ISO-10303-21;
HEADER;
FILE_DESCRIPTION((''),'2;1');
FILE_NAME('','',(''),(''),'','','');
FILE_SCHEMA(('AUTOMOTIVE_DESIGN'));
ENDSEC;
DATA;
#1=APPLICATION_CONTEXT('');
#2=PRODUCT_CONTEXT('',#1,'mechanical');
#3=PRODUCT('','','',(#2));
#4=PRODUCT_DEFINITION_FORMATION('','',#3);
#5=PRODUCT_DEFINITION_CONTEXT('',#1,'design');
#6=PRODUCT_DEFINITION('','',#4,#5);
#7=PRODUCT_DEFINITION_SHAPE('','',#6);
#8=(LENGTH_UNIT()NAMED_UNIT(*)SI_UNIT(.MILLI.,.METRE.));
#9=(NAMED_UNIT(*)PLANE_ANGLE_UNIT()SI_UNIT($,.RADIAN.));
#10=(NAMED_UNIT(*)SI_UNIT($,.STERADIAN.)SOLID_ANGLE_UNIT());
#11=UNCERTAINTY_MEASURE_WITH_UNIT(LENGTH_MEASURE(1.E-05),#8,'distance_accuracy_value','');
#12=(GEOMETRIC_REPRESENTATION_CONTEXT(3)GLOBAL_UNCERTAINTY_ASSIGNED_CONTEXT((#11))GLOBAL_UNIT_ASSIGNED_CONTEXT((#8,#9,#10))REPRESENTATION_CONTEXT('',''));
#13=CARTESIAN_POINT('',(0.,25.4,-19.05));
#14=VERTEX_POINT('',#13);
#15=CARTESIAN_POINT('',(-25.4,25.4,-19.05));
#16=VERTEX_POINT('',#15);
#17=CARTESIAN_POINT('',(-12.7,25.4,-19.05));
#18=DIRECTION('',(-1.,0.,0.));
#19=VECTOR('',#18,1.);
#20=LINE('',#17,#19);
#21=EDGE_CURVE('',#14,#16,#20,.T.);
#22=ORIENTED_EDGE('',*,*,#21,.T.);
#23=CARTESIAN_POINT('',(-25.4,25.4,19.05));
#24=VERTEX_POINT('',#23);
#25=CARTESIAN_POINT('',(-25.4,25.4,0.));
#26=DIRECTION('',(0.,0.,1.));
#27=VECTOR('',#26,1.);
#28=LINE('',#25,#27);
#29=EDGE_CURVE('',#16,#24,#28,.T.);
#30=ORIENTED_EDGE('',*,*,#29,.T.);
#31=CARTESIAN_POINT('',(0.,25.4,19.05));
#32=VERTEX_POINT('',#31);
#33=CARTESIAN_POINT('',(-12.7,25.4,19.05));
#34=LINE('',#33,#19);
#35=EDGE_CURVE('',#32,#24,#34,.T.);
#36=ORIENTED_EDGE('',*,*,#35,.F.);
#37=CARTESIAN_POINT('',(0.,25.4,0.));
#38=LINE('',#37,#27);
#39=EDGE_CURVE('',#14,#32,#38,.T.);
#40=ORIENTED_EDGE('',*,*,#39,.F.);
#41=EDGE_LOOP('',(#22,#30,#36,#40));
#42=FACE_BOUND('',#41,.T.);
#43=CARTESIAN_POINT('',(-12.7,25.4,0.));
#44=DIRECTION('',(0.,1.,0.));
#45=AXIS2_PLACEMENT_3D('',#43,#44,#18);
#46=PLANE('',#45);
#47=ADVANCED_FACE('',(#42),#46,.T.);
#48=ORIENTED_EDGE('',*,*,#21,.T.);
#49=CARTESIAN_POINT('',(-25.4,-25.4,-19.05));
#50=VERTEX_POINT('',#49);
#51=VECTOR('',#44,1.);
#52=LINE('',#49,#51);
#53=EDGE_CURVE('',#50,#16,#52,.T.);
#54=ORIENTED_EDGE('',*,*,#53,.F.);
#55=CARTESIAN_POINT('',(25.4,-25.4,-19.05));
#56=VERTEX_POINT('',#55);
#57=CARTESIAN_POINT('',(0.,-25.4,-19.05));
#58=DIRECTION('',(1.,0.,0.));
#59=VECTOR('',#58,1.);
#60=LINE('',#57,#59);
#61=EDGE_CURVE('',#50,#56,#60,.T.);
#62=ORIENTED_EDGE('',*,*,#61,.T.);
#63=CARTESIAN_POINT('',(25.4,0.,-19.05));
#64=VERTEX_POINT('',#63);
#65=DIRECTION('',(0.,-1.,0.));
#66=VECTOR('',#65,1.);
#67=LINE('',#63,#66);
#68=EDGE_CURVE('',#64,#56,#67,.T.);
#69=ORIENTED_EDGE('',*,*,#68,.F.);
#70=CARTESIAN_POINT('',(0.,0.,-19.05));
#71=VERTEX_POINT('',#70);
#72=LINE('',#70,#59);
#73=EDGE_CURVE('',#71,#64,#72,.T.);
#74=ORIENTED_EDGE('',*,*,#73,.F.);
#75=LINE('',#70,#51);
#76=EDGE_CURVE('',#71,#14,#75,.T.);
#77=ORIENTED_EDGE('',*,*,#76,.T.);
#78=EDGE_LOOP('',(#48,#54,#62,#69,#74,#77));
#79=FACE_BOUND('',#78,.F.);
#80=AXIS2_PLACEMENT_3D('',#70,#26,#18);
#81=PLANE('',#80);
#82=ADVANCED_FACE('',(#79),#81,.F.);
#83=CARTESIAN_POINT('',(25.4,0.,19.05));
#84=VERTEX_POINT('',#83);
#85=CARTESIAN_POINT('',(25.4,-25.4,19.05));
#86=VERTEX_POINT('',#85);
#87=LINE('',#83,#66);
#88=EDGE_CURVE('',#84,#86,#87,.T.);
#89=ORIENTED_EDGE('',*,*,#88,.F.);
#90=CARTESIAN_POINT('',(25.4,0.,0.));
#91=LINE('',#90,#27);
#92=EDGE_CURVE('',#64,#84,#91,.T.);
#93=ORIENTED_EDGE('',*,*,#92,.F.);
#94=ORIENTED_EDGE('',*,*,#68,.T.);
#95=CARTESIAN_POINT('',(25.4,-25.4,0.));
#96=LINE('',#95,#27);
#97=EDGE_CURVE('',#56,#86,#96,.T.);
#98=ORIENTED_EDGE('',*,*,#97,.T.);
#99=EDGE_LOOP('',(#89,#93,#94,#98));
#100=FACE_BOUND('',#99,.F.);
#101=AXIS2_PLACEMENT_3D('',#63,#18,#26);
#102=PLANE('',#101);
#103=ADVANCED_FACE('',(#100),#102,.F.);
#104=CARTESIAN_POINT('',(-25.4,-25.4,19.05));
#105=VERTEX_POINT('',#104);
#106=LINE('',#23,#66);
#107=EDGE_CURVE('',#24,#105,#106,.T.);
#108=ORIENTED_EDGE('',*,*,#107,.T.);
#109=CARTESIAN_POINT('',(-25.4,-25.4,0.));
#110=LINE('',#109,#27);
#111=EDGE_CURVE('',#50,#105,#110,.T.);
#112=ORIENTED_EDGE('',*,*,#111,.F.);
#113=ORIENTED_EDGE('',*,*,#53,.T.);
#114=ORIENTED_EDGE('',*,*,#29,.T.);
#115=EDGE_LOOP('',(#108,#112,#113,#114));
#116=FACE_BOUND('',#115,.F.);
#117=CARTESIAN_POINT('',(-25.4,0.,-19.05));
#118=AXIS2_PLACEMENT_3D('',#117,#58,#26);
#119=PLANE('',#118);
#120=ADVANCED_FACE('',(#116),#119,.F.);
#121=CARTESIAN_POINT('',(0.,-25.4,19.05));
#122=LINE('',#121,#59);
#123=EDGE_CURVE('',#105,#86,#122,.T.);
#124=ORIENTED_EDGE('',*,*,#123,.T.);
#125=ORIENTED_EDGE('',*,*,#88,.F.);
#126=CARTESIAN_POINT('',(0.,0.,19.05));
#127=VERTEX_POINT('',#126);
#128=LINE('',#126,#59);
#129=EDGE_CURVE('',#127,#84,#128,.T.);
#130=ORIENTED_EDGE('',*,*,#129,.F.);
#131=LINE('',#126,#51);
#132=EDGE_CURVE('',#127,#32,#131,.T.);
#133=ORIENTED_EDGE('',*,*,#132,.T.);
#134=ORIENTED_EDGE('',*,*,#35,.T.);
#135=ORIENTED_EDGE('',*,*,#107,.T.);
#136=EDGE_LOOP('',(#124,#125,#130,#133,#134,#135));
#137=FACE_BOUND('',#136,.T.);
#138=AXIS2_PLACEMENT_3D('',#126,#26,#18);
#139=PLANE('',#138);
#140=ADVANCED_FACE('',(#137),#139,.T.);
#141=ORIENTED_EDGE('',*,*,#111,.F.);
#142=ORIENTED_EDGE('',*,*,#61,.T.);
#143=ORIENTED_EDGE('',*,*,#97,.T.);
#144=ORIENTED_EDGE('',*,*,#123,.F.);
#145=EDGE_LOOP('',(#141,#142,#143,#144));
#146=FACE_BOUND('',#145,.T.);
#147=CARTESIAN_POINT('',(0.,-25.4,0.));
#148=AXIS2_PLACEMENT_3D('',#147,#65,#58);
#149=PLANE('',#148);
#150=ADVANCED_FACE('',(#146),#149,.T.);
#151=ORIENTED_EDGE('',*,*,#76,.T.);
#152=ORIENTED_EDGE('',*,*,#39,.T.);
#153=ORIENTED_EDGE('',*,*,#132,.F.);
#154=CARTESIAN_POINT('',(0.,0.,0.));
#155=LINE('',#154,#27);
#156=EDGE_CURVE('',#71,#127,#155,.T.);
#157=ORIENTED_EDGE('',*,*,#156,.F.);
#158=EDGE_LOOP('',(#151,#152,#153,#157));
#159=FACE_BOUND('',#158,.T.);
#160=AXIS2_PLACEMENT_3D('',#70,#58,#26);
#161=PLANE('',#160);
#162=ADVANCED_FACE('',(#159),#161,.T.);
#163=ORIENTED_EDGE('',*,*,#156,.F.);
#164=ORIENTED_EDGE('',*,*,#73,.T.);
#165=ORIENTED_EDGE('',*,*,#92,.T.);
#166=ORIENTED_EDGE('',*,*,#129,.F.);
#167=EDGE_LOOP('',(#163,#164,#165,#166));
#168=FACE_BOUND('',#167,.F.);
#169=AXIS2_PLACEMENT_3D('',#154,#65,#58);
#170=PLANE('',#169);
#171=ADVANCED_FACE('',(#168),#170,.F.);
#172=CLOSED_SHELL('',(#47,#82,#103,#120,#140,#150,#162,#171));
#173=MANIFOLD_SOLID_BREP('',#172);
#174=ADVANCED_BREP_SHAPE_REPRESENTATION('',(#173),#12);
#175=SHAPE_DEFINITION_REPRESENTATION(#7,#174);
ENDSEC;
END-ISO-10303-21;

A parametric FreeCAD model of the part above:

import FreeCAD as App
import Part
import Sketcher

V = App.Vector
Q = App.Units.Quantity

doc = App.newDocument("Part")
body = doc.addObject("PartDesign::Body", "Body")

sketch1 = doc.addObject("Sketcher::SketchObject", "Sketch")
body.addObject(sketch1)
sketch1.AttachmentSupport = (doc.XZ_Plane, [""])
sketch1.MapMode = "FlatFace"
sketch1.addGeometry([
    Part.LineSegment(V(-25.4, 19.05, 0), V(-25.4, -19.05, 0)),
    Part.LineSegment(V(-25.4, -19.05, 0), V(25.4, -19.05, 0)),
    Part.LineSegment(V(25.4, -19.05, 0), V(25.4, 19.05, 0)),
    Part.LineSegment(V(25.4, 19.05, 0), V(-25.4, 19.05, 0)),
], False)
sketch1.addConstraint([
    Sketcher.Constraint("Coincident", 0, 2, 1, 1),
    Sketcher.Constraint("Coincident", 1, 2, 2, 1),
    Sketcher.Constraint("Coincident", 2, 2, 3, 1),
    Sketcher.Constraint("Coincident", 3, 2, 0, 1),
    Sketcher.Constraint("Vertical", 0),
    Sketcher.Constraint("Horizontal", 1),
    Sketcher.Constraint("Vertical", 2),
    Sketcher.Constraint("Horizontal", 3),
    Sketcher.Constraint("Symmetric", 0, 2, 2, 2, -1, 1),
    Sketcher.Constraint("DistanceX", 1, 1, 1, 2, Q("2 in")),
    Sketcher.Constraint("DistanceY", 0, 2, 0, 1, Q("1.5 in")),
])
pad1 = doc.addObject("PartDesign::Pad", "Pad")
body.addObject(pad1)
pad1.Profile = sketch1
pad1.Length = Q("1 in")

sketch2 = doc.addObject("Sketcher::SketchObject", "Sketch001")
body.addObject(sketch2)
sketch2.AttachmentSupport = (doc.XZ_Plane, [""])
sketch2.MapMode = "FlatFace"
sketch2.addGeometry([
    Part.LineSegment(V(0, 19.05, 0), V(0, -19.05, 0)),
    Part.LineSegment(V(0, -19.05, 0), V(-25.4, -19.05, 0)),
    Part.LineSegment(V(-25.4, -19.05, 0), V(-25.4, 19.05, 0)),
    Part.LineSegment(V(-25.4, 19.05, 0), V(0, 19.05, 0)),
], False)
sketch2.addConstraint([
    Sketcher.Constraint("Coincident", 0, 2, 1, 1),
    Sketcher.Constraint("Coincident", 1, 2, 2, 1),
    Sketcher.Constraint("Coincident", 2, 2, 3, 1),
    Sketcher.Constraint("Coincident", 3, 2, 0, 1),
    Sketcher.Constraint("Vertical", 0),
    Sketcher.Constraint("Horizontal", 1),
    Sketcher.Constraint("Vertical", 2),
    Sketcher.Constraint("Horizontal", 3),
    Sketcher.Constraint("Symmetric", 0, 2, 3, 2, -1, 1),
    Sketcher.Constraint("DistanceX", 1, 2, 1, 1, Q("1 in")),
    Sketcher.Constraint("DistanceY", 0, 2, 0, 1, Q("1.5 in")),
])
pad2 = doc.addObject("PartDesign::Pad", "Pad001")
body.addObject(pad2)
pad2.Profile = sketch2
pad2.Length = Q("1 in")
pad2.Reversed = True

doc.recompute()
